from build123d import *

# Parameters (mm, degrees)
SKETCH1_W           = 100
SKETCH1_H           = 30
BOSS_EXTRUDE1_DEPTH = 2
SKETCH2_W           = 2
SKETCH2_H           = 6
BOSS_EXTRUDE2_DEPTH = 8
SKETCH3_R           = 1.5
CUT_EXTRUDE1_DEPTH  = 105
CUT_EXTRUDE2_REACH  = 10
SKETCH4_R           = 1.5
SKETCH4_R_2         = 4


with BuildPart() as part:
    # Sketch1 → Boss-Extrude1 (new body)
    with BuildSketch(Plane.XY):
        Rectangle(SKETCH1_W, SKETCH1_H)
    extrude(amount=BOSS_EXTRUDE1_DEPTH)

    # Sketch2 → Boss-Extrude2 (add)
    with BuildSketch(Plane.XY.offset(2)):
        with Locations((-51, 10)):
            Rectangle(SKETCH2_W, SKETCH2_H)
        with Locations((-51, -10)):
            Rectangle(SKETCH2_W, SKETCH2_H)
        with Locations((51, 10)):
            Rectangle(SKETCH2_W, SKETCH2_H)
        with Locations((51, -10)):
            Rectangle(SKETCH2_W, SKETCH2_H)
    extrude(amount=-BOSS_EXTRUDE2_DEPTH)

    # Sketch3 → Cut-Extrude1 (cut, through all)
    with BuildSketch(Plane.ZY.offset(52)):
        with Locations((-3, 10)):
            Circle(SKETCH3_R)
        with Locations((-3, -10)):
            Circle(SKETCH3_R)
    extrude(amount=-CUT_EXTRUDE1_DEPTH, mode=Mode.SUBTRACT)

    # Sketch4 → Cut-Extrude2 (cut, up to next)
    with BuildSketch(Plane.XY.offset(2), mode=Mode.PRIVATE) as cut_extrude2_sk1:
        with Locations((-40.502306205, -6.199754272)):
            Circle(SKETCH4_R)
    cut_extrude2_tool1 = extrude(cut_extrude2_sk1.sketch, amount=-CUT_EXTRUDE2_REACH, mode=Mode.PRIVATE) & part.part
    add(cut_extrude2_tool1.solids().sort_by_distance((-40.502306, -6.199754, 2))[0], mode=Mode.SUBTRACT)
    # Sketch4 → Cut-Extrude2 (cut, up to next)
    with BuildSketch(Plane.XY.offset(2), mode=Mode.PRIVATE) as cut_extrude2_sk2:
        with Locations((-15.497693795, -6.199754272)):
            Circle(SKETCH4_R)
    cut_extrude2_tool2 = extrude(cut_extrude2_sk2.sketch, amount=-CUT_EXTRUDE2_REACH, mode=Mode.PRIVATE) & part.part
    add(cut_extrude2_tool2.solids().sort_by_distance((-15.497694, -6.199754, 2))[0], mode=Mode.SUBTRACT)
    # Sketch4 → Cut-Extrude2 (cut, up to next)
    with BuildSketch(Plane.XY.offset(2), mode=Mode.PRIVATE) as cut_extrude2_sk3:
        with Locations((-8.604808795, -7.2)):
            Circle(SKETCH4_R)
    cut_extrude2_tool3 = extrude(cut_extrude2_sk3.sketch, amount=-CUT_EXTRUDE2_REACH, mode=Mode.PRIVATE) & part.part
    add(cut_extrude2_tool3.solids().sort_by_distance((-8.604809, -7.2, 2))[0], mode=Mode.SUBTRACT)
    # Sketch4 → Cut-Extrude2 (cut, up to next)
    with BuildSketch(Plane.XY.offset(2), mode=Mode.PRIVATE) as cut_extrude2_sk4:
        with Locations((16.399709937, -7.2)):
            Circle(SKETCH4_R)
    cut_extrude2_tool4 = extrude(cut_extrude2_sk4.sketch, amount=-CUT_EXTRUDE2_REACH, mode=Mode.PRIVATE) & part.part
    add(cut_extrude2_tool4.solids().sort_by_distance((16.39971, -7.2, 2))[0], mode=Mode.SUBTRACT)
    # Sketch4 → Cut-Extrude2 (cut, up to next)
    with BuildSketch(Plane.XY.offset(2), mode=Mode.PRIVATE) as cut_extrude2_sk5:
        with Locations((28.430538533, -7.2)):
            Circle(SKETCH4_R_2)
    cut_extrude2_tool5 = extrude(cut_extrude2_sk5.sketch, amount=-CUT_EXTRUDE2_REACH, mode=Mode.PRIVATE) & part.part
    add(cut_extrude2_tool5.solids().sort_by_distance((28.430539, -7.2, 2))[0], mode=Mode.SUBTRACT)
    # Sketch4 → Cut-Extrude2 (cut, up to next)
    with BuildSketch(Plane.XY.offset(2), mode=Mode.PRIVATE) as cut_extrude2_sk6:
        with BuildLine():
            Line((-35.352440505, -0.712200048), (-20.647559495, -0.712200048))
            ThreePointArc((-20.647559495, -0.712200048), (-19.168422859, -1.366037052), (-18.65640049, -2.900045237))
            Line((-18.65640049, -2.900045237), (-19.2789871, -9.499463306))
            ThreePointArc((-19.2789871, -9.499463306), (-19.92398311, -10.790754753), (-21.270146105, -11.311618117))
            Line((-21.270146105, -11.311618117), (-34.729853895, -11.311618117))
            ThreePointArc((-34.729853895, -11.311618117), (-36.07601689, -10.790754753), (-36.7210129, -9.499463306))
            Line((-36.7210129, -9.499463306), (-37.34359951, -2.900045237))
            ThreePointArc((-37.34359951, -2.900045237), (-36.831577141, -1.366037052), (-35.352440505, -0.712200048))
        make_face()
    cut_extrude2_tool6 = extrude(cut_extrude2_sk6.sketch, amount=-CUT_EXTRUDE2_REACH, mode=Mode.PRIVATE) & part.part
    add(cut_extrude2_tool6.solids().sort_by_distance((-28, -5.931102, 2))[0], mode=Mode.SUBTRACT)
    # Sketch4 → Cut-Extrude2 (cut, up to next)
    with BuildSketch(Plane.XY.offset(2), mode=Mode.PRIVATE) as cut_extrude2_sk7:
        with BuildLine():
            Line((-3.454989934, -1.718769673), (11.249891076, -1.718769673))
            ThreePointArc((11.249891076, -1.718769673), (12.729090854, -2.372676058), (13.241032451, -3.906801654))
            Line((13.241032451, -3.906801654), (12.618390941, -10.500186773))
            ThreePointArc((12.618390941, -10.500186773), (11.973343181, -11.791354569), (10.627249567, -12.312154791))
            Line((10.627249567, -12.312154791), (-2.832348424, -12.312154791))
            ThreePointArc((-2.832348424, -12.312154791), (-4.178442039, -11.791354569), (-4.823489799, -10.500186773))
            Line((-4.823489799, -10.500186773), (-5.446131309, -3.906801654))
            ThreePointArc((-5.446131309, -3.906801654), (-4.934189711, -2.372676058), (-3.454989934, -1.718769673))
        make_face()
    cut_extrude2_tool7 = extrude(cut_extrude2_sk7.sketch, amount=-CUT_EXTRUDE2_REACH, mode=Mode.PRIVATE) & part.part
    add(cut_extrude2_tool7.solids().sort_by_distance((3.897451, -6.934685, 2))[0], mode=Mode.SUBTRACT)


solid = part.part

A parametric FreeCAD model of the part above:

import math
import FreeCAD as App
import Part
import Sketcher
from FreeCAD import Vector
Q = App.Units.Quantity


def add_polygon(sketch, points):
    """Adds a closed chain of lines whose ends are joined by coincident constraints."""
    first, n = sketch.GeometryCount, len(points)
    for a, b in zip(points, points[1:] + points[:1]):
        sketch.addGeometry(Part.LineSegment(App.Vector(*a, 0), App.Vector(*b, 0)), False)
    for i in range(n):
        sketch.addConstraint(Sketcher.Constraint("Coincident", first + i, 2, first + (i + 1) % n, 1))

doc = App.newDocument("Part")
body = doc.addObject("PartDesign::Body", "Body")

sketch1 = body.newObject("Sketcher::SketchObject", "Sketch")
sketch1.AttachmentSupport = (doc.getObject("XY_Plane"), [""])
sketch1.MapMode = "FlatFace"
add_polygon(sketch1, [(-50, 15), (-50, -15), (50, -15), (50, 15)])
sketch1.addConstraint(Sketcher.Constraint("Vertical", 0))
sketch1.addConstraint(Sketcher.Constraint("Horizontal", 1))
sketch1.addConstraint(Sketcher.Constraint("Vertical", 2))
sketch1.addConstraint(Sketcher.Constraint("Horizontal", 3))
sketch1.addConstraint(Sketcher.Constraint("Symmetric", 0, 2, 2, 2, -1, 1))
sketch1.addConstraint(Sketcher.Constraint("DistanceX", 1, 1, 1, 2, Q("100 mm")))
sketch1.addConstraint(Sketcher.Constraint("DistanceY", 0, 2, 0, 1, Q("30 mm")))
pad1 = body.newObject("PartDesign::Pad", "Pad")
pad1.Profile = sketch1
pad1.Length = 2

sketch2 = body.newObject("Sketcher::SketchObject", "Sketch001")
sketch2.AttachmentSupport = (doc.getObject("XY_Plane"), [""])
sketch2.MapMode = "FlatFace"
sketch2.AttachmentOffset = App.Placement(Vector(0, 0, 2), App.Rotation())
add_polygon(sketch2, [(-52, 13), (-52, 7), (-50, 7), (-50, 13)])
add_polygon(sketch2, [(-52, -7), (-52, -13), (-50, -13), (-50, -7)])
add_polygon(sketch2, [(50, 13), (50, 7), (52, 7), (52, 13)])
add_polygon(sketch2, [(50, -7), (50, -13), (52, -13), (52, -7)])
sketch2.addConstraint(Sketcher.Constraint("Vertical", 0))
sketch2.addConstraint(Sketcher.Constraint("Horizontal", 1))
sketch2.addConstraint(Sketcher.Constraint("Vertical", 2))
sketch2.addConstraint(Sketcher.Constraint("Horizontal", 3))
sketch2.addConstraint(Sketcher.Constraint("Vertical", 4))
sketch2.addConstraint(Sketcher.Constraint("Horizontal", 5))
sketch2.addConstraint(Sketcher.Constraint("Vertical", 6))
sketch2.addConstraint(Sketcher.Constraint("Horizontal", 7))
sketch2.addConstraint(Sketcher.Constraint("Vertical", 8))
sketch2.addConstraint(Sketcher.Constraint("Horizontal", 9))
sketch2.addConstraint(Sketcher.Constraint("Vertical", 10))
sketch2.addConstraint(Sketcher.Constraint("Horizontal", 11))
sketch2.addConstraint(Sketcher.Constraint("Vertical", 12))
sketch2.addConstraint(Sketcher.Constraint("Horizontal", 13))
sketch2.addConstraint(Sketcher.Constraint("Vertical", 14))
sketch2.addConstraint(Sketcher.Constraint("Horizontal", 15))
sketch2.addConstraint(Sketcher.Constraint("Symmetric", 6, 2, 8, 2, -1, 1))
sketch2.addConstraint(Sketcher.Constraint("Symmetric", 4, 2, 10, 2, -1, 1))
sketch2.addConstraint(Sketcher.Constraint("Symmetric", 2, 2, 12, 2, -1, 1))
sketch2.addConstraint(Sketcher.Constraint("Symmetric", 0, 2, 14, 2, -1, 1))
sketch2.addConstraint(Sketcher.Constraint("Symmetric", 1, 2, 8, 2, -2))
sketch2.addConstraint(Sketcher.Constraint("Symmetric", 3, 2, 10, 2, -2))
sketch2.addConstraint(Sketcher.Constraint("DistanceX", 1, 1, 1, 2, Q("2 mm")))
sketch2.addConstraint(Sketcher.Constraint("DistanceY", 0, 2, 0, 1, Q("6 mm")))
sketch2.addConstraint(Sketcher.Constraint("DistanceX", 0, 2, -1, 1, Q("52 mm")))
sketch2.addConstraint(Sketcher.Constraint("DistanceY", -1, 1, 0, 2, Q("7 mm")))
pad2 = body.newObject("PartDesign::Pad", "Pad001")
pad2.Profile = sketch2
pad2.Length = 8
pad2.Reversed = True

sketch3 = body.newObject("Sketcher::SketchObject", "Sketch002")
sketch3.AttachmentSupport = (doc.getObject("YZ_Plane"), [""])
sketch3.MapMode = "FlatFace"
sketch3.AttachmentOffset = App.Placement(Vector(0, 0, -52), App.Rotation())
sketch3.addGeometry(Part.Circle(Vector(10, -3, 0), Vector(0, 0, 1), 1.5), False)
sketch3.addGeometry(Part.Circle(Vector(-10, -3, 0), Vector(0, 0, 1), 1.5), False)
sketch3.addConstraint(Sketcher.Constraint("Equal", 0, 1))
sketch3.addConstraint(Sketcher.Constraint("Symmetric", 0, 3, 1, 3, -2))
sketch3.addConstraint(Sketcher.Constraint("Diameter", 0, Q("3 mm")))
sketch3.addConstraint(Sketcher.Constraint("DistanceX", -1, 1, 0, 3, Q("10 mm")))
sketch3.addConstraint(Sketcher.Constraint("DistanceY", 0, 3, -1, 1, Q("3 mm")))
pocket1 = body.newObject("PartDesign::Pocket", "Pocket")
pocket1.Profile = sketch3
pocket1.Type = "ThroughAll"
pocket1.Reversed = True

sketch4 = body.newObject("Sketcher::SketchObject", "Sketch003")
sketch4.AttachmentSupport = (doc.getObject("XY_Plane"), [""])
sketch4.MapMode = "FlatFace"
sketch4.AttachmentOffset = App.Placement(Vector(0, 0, 2), App.Rotation())
sketch4.addGeometry(Part.Circle(Vector(-40.5, -6.2, 0), Vector(0, 0, 1), 1.5), False)
sketch4.addConstraint(Sketcher.Constraint("Diameter", 0, Q("3 mm")))
sketch4.addConstraint(Sketcher.Constraint("DistanceX", 0, 3, -1, 1, Q("40.502306 mm")))
sketch4.addConstraint(Sketcher.Constraint("DistanceY", 0, 3, -1, 1, Q("6.199754 mm")))
pocket2 = body.newObject("PartDesign::Pocket", "Pocket001")
pocket2.Profile = sketch4
pocket2.Type = "UpToFirst"

sketch5 = body.newObject("Sketcher::SketchObject", "Sketch004")
sketch5.AttachmentSupport = (doc.getObject("XY_Plane"), [""])
sketch5.MapMode = "FlatFace"
sketch5.AttachmentOffset = App.Placement(Vector(0, 0, 2), App.Rotation())
sketch5.addGeometry(Part.Circle(Vector(-15.5, -6.2, 0), Vector(0, 0, 1), 1.5), False)
sketch5.addConstraint(Sketcher.Constraint("Diameter", 0, Q("3 mm")))
sketch5.addConstraint(Sketcher.Constraint("DistanceX", 0, 3, -1, 1, Q("15.497694 mm")))
sketch5.addConstraint(Sketcher.Constraint("DistanceY", 0, 3, -1, 1, Q("6.199754 mm")))
pocket3 = body.newObject("PartDesign::Pocket", "Pocket002")
pocket3.Profile = sketch5
pocket3.Type = "UpToFirst"

sketch6 = body.newObject("Sketcher::SketchObject", "Sketch005")
sketch6.AttachmentSupport = (doc.getObject("XY_Plane"), [""])
sketch6.MapMode = "FlatFace"
sketch6.AttachmentOffset = App.Placement(Vector(0, 0, 2), App.Rotation())
sketch6.addGeometry(Part.Circle(Vector(-8.6, -7.2, 0), Vector(0, 0, 1), 1.5), False)
sketch6.addConstraint(Sketcher.Constraint("Diameter", 0, Q("3 mm")))
sketch6.addConstraint(Sketcher.Constraint("DistanceY", 0, 3, -1, 1, Q("7.2 mm")))
sketch6.addConstraint(Sketcher.Constraint("DistanceX", 0, 3, -1, 1, Q("8.604809 mm")))
pocket4 = body.newObject("PartDesign::Pocket", "Pocket003")
pocket4.Profile = sketch6
pocket4.Type = "UpToFirst"

sketch7 = body.newObject("Sketcher::SketchObject", "Sketch006")
sketch7.AttachmentSupport = (doc.getObject("XY_Plane"), [""])
sketch7.MapMode = "FlatFace"
sketch7.AttachmentOffset = App.Placement(Vector(0, 0, 2), App.Rotation())
sketch7.addGeometry(Part.Circle(Vector(16.4, -7.2, 0), Vector(0, 0, 1), 1.5), False)
sketch7.addConstraint(Sketcher.Constraint("Diameter", 0, Q("3 mm")))
sketch7.addConstraint(Sketcher.Constraint("DistanceY", 0, 3, -1, 1, Q("7.2 mm")))
sketch7.addConstraint(Sketcher.Constraint("DistanceX", -1, 1, 0, 3, Q("16.39971 mm")))
pocket5 = body.newObject("PartDesign::Pocket", "Pocket004")
pocket5.Profile = sketch7
pocket5.Type = "UpToFirst"

sketch8 = body.newObject("Sketcher::SketchObject", "Sketch007")
sketch8.AttachmentSupport = (doc.getObject("XY_Plane"), [""])
sketch8.MapMode = "FlatFace"
sketch8.AttachmentOffset = App.Placement(Vector(0, 0, 2), App.Rotation())
sketch8.addGeometry(Part.Circle(Vector(28.4, -7.2, 0), Vector(0, 0, 1), 4), False)
sketch8.addConstraint(Sketcher.Constraint("Diameter", 0, Q("8 mm")))
sketch8.addConstraint(Sketcher.Constraint("DistanceY", 0, 3, -1, 1, Q("7.2 mm")))
sketch8.addConstraint(Sketcher.Constraint("DistanceX", -1, 1, 0, 3, Q("28.430539 mm")))
pocket6 = body.newObject("PartDesign::Pocket", "Pocket005")
pocket6.Profile = sketch8
pocket6.Type = "UpToFirst"

sketch9 = body.newObject("Sketcher::SketchObject", "Sketch008")
sketch9.AttachmentSupport = (doc.getObject("XY_Plane"), [""])
sketch9.MapMode = "FlatFace"
sketch9.AttachmentOffset = App.Placement(Vector(0, 0, 2), App.Rotation())
sketch9.addGeometry(Part.LineSegment(Vector(-20.6, -0.7, 0), Vector(-35.4, -0.7, 0)), False)
sketch9.addGeometry(Part.ArcOfCircle(Part.Circle(Vector(-35.4, -2.7, 0), Vector(0, 0, 1), 2), math.radians(90), math.radians(185)), False)
sketch9.addGeometry(Part.LineSegment(Vector(-37.3, -2.9, 0), Vector(-36.7, -9.5, 0)), False)
sketch9.addGeometry(Part.ArcOfCircle(Part.Circle(Vector(-34.7, -9.3, 0), Vector(0, 0, 1), 2), math.radians(-175), math.radians(-90)), False)
sketch9.addGeometry(Part.LineSegment(Vector(-34.7, -11.3, 0), Vector(-21.3, -11.3, 0)), False)
sketch9.addGeometry(Part.ArcOfCircle(Part.Circle(Vector(-21.3, -9.3, 0), Vector(0, 0, 1), 2), math.radians(-90), math.radians(-5)), False)
sketch9.addGeometry(Part.LineSegment(Vector(-19.3, -9.5, 0), Vector(-18.7, -2.9, 0)), False)
sketch9.addGeometry(Part.ArcOfCircle(Part.Circle(Vector(-20.6, -2.7, 0), Vector(0, 0, 1), 2), math.radians(-5), math.radians(90)), False)
sketch9.addConstraint(Sketcher.Constraint("Tangent", 0, 2, 1, 1))
sketch9.addConstraint(Sketcher.Constraint("Tangent", 1, 2, 2, 1))
sketch9.addConstraint(Sketcher.Constraint("Tangent", 2, 2, 3, 1))
sketch9.addConstraint(Sketcher.Constraint("Tangent", 3, 2, 4, 1))
sketch9.addConstraint(Sketcher.Constraint("Tangent", 4, 2, 5, 1))
sketch9.addConstraint(Sketcher.Constraint("Tangent", 5, 2, 6, 1))
sketch9.addConstraint(Sketcher.Constraint("Tangent", 6, 2, 7, 1))
sketch9.addConstraint(Sketcher.Constraint("Tangent", 7, 2, 0, 1))
sketch9.addConstraint(Sketcher.Constraint("Horizontal", 0))
sketch9.addConstraint(Sketcher.Constraint("Horizontal", 4))
sketch9.addConstraint(Sketcher.Constraint("Equal", 1, 3))
sketch9.addConstraint(Sketcher.Constraint("Equal", 3, 5))
sketch9.addConstraint(Sketcher.Constraint("Equal", 5, 7))
sketch9.addConstraint(Sketcher.Constraint("Horizontal", 2, 2, 5, 2))
sketch9.addConstraint(Sketcher.Constraint("Radius", 1, Q("2 mm")))
sketch9.addConstraint(Sketcher.Constraint("DistanceX", 0, 2, 0, 1, Q("14.704881 mm")))
sketch9.addConstraint(Sketcher.Constraint("DistanceY", 1, 3, -1, 1, Q("2.7122 mm")))
sketch9.addConstraint(Sketcher.Constraint("DistanceX", 1, 2, -1, 1, Q("37.3436 mm")))
sketch9.addConstraint(Sketcher.Constraint("DistanceX", 6, 2, -1, 1, Q("18.6564 mm")))
sketch9.addConstraint(Sketcher.Constraint("Distance", 2, Q("6.62872 mm")))
pocket7 = body.newObject("PartDesign::Pocket", "Pocket006")
pocket7.Profile = sketch9
pocket7.Type = "UpToFirst"

sketch10 = body.newObject("Sketcher::SketchObject", "Sketch009")
sketch10.AttachmentSupport = (doc.getObject("XY_Plane"), [""])
sketch10.MapMode = "FlatFace"
sketch10.AttachmentOffset = App.Placement(Vector(0, 0, 2), App.Rotation())
sketch10.addGeometry(Part.LineSegment(Vector(11.2, -1.7, 0), Vector(-3.5, -1.7, 0)), False)
sketch10.addGeometry(Part.ArcOfCircle(Part.Circle(Vector(-3.5, -3.7, 0), Vector(0, 0, 1), 2), math.radians(90), math.radians(185)), False)
sketch10.addGeometry(Part.LineSegment(Vector(-5.4, -3.9, 0), Vector(-4.8, -10.5, 0)), False)
sketch10.addGeometry(Part.ArcOfCircle(Part.Circle(Vector(-2.8, -10.3, 0), Vector(0, 0, 1), 2), math.radians(-175), math.radians(-90)), False)
sketch10.addGeometry(Part.LineSegment(Vector(-2.8, -12.3, 0), Vector(10.6, -12.3, 0)), False)
sketch10.addGeometry(Part.ArcOfCircle(Part.Circle(Vector(10.6, -10.3, 0), Vector(0, 0, 1), 2), math.radians(-90), math.radians(-5)), False)
sketch10.addGeometry(Part.LineSegment(Vector(12.6, -10.5, 0), Vector(13.2, -3.9, 0)), False)
sketch10.addGeometry(Part.ArcOfCircle(Part.Circle(Vector(11.2, -3.7, 0), Vector(0, 0, 1), 2), math.radians(-5), math.radians(90)), False)
sketch10.addConstraint(Sketcher.Constraint("Tangent", 0, 2, 1, 1))
sketch10.addConstraint(Sketcher.Constraint("Tangent", 1, 2, 2, 1))
sketch10.addConstraint(Sketcher.Constraint("Tangent", 2, 2, 3, 1))
sketch10.addConstraint(Sketcher.Constraint("Tangent", 3, 2, 4, 1))
sketch10.addConstraint(Sketcher.Constraint("Tangent", 4, 2, 5, 1))
sketch10.addConstraint(Sketcher.Constraint("Tangent", 5, 2, 6, 1))
sketch10.addConstraint(Sketcher.Constraint("Tangent", 6, 2, 7, 1))
sketch10.addConstraint(Sketcher.Constraint("Tangent", 7, 2, 0, 1))
sketch10.addConstraint(Sketcher.Constraint("Horizontal", 0))
sketch10.addConstraint(Sketcher.Constraint("Horizontal", 4))
sketch10.addConstraint(Sketcher.Constraint("Equal", 1, 3))
sketch10.addConstraint(Sketcher.Constraint("Equal", 3, 5))
sketch10.addConstraint(Sketcher.Constraint("Equal", 5, 7))
sketch10.addConstraint(Sketcher.Constraint("Horizontal", 2, 2, 5, 2))
sketch10.addConstraint(Sketcher.Constraint("Radius", 1, Q("2 mm")))
sketch10.addConstraint(Sketcher.Constraint("DistanceX", 0, 2, 0, 1, Q("14.704881 mm")))
sketch10.addConstraint(Sketcher.Constraint("DistanceY", 1, 2, -1, 1, Q("3.906802 mm")))
sketch10.addConstraint(Sketcher.Constraint("DistanceX", 2, 2, 1, 3, Q("1.3685 mm")))
sketch10.addConstraint(Sketcher.Constraint("Distance", 2, Q("6.622719 mm")))
sketch10.addConstraint(Sketcher.Constraint("DistanceX", 1, 3, -1, 1, Q("3.45499 mm")))
pocket8 = body.newObject("PartDesign::Pocket", "Pocket007")
pocket8.Profile = sketch10
pocket8.Type = "UpToFirst"

doc.recompute()
